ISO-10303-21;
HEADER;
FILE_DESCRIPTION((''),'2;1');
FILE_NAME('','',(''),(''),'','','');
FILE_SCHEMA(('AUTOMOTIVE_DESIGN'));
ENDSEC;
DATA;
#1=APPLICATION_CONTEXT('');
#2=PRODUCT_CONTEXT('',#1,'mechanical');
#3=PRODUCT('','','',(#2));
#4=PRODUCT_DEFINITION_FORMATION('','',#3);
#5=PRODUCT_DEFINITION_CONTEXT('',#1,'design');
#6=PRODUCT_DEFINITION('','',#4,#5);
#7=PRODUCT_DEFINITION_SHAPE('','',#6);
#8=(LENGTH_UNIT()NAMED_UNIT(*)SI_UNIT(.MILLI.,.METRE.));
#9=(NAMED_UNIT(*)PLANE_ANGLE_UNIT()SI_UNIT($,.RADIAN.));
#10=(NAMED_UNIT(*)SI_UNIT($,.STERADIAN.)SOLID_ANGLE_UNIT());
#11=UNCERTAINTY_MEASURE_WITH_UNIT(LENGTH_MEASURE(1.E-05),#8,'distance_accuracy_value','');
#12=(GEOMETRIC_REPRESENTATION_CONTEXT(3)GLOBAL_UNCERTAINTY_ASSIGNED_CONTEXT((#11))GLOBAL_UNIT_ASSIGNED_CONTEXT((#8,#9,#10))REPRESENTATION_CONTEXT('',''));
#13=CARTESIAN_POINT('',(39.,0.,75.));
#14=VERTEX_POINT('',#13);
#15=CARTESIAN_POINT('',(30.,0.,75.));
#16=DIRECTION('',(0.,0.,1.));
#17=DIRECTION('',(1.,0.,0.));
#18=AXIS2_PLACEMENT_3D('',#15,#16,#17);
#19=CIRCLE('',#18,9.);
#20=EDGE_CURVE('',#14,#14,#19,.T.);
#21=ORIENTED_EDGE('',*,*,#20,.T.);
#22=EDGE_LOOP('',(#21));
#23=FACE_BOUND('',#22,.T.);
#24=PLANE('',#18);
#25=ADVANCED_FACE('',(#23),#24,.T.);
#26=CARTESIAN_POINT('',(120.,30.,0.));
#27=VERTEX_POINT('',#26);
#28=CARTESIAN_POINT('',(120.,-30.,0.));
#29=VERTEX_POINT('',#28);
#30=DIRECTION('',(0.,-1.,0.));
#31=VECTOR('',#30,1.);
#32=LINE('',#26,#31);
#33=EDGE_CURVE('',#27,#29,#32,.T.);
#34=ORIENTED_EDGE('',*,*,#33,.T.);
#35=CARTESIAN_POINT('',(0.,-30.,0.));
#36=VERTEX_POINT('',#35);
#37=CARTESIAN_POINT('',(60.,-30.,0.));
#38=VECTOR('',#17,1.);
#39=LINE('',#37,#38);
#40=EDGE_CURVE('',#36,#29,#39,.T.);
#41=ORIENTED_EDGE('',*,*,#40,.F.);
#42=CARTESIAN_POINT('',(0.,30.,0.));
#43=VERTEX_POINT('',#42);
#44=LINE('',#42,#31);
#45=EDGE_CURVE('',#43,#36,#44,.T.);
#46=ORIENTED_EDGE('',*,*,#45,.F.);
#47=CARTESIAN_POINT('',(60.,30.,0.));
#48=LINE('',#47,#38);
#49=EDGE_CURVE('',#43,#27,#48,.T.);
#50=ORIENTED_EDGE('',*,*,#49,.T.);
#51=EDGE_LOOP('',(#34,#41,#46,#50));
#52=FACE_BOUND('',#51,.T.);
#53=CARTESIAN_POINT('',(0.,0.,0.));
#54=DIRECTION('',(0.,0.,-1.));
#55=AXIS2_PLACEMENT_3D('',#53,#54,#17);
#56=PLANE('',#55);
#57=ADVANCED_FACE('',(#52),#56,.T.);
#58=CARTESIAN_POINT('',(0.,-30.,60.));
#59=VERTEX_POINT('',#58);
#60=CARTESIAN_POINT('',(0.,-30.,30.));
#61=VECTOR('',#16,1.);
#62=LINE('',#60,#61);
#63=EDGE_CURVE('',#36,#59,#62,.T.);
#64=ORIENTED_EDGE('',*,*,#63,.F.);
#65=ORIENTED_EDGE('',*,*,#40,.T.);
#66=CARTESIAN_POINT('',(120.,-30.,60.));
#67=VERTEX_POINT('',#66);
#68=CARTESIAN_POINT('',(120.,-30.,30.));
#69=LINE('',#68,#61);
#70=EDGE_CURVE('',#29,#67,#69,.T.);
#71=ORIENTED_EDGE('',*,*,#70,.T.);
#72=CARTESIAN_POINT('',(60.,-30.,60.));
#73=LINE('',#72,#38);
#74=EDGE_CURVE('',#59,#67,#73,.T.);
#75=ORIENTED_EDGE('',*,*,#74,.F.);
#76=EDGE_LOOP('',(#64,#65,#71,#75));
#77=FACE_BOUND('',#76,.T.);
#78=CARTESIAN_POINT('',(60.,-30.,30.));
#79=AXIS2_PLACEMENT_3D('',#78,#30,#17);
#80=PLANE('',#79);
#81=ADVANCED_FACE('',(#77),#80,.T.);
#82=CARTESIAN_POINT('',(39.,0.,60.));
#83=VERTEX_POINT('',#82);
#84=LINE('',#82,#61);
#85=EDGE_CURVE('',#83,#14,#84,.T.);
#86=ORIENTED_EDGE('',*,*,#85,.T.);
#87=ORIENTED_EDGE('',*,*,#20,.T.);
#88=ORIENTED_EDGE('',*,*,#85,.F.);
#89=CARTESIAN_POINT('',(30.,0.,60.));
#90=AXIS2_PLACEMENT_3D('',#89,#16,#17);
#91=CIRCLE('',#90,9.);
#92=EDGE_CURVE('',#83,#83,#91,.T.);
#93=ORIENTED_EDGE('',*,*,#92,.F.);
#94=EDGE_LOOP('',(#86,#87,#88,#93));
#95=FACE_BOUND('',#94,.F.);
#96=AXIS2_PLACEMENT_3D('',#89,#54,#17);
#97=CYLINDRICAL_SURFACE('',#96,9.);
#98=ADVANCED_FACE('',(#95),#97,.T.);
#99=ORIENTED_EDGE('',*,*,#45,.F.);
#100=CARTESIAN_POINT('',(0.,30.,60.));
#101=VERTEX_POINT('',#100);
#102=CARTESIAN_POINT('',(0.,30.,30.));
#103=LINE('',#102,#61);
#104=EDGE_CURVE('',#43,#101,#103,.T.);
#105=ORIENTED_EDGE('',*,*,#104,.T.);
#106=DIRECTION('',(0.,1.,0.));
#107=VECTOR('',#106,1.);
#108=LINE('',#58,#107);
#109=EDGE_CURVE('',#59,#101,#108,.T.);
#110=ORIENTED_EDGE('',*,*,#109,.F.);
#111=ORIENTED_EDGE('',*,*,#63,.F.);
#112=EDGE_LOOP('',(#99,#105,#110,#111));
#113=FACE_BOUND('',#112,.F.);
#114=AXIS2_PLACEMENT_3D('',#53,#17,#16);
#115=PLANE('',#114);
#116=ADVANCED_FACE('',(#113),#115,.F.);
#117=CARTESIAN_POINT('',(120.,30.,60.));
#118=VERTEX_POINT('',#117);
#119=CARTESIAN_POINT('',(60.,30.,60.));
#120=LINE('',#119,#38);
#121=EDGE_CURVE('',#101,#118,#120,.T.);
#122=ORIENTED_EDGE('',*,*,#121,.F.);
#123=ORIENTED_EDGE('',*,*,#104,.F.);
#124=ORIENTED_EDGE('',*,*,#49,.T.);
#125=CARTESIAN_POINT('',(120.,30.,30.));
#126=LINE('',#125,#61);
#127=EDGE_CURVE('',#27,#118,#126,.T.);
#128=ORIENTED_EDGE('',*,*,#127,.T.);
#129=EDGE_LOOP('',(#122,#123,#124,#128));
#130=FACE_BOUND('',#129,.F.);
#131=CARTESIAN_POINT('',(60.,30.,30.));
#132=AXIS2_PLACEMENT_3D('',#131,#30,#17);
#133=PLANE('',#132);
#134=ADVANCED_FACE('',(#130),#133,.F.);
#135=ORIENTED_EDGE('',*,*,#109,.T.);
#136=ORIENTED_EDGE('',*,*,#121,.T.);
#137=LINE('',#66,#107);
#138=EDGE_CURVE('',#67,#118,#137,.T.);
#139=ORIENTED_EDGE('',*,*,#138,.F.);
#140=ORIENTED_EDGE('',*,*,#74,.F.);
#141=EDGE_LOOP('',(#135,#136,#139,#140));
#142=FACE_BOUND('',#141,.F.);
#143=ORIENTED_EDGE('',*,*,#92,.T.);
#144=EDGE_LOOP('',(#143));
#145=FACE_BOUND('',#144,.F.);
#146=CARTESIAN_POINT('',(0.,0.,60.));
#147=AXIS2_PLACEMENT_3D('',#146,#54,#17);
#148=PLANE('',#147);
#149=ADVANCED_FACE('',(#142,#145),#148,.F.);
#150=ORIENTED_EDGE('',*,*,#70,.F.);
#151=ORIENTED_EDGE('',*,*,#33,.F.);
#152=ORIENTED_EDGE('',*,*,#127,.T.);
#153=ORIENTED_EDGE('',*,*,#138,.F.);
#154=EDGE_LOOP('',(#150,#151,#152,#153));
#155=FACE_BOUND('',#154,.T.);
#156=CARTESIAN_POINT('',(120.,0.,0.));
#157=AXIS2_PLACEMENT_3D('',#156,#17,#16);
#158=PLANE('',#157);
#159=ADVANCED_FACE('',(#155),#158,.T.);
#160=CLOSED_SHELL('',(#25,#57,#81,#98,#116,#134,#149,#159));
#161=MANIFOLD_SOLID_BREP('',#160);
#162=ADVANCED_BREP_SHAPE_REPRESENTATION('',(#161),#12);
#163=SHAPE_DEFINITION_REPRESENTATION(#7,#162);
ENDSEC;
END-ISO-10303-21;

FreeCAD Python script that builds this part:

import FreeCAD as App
import Part
import Sketcher
Q = App.Units.Quantity

doc = App.newDocument("Part")
body = doc.addObject("PartDesign::Body", "Body")

# Sketch on XZ plane
sketch1 = body.newObject("Sketcher::SketchObject", "Sketch")
sketch1.AttachmentSupport = (doc.getObject("XZ_Plane"), [""])
sketch1.MapMode = "FlatFace"
sketch1.addGeometry([
    Part.LineSegment(App.Vector(0, 60, 0), App.Vector(0, 0, 0)),
    Part.LineSegment(App.Vector(0, 0, 0), App.Vector(120, 0, 0)),
    Part.LineSegment(App.Vector(120, 0, 0), App.Vector(120, 60, 0)),
    Part.LineSegment(App.Vector(120, 60, 0), App.Vector(0, 60, 0)),
], False)
sketch1.addConstraint([
    Sketcher.Constraint("Coincident", 0, 2, 1, 1),
    Sketcher.Constraint("Coincident", 1, 2, 2, 1),
    Sketcher.Constraint("Coincident", 2, 2, 3, 1),
    Sketcher.Constraint("Coincident", 3, 2, 0, 1),
    Sketcher.Constraint("Vertical", 0),
    Sketcher.Constraint("Horizontal", 1),
    Sketcher.Constraint("Vertical", 2),
    Sketcher.Constraint("Horizontal", 3),
    Sketcher.Constraint("Coincident", 0, 2, -1, 1),
    Sketcher.Constraint("DistanceX", 1, 1, 1, 2, Q("120 mm")),
    Sketcher.Constraint("DistanceY", 0, 2, 0, 1, Q("60 mm")),
])
pad1 = body.newObject("PartDesign::Pad", "Pad")
pad1.Profile = sketch1
pad1.Length = 60
pad1.Midplane = True

# Sketch on XY plane
sketch2 = body.newObject("Sketcher::SketchObject", "Sketch001")
sketch2.AttachmentSupport = (doc.getObject("XY_Plane"), [""])
sketch2.MapMode = "FlatFace"
sketch2.AttachmentOffset = App.Placement(App.Vector(0, 0, 60), App.Rotation())
sketch2.addGeometry(Part.Circle(App.Vector(30, 0, 0), App.Vector(0, 0, 1), 9), False)
sketch2.addConstraint([
    Sketcher.Constraint("PointOnObject", 0, 3, -1),
    Sketcher.Constraint("Diameter", 0, Q("18 mm")),
    Sketcher.Constraint("DistanceX", -1, 1, 0, 3, Q("30 mm")),
])
pad2 = body.newObject("PartDesign::Pad", "Pad001")
pad2.Profile = sketch2
pad2.Length = 15

doc.recompute()
